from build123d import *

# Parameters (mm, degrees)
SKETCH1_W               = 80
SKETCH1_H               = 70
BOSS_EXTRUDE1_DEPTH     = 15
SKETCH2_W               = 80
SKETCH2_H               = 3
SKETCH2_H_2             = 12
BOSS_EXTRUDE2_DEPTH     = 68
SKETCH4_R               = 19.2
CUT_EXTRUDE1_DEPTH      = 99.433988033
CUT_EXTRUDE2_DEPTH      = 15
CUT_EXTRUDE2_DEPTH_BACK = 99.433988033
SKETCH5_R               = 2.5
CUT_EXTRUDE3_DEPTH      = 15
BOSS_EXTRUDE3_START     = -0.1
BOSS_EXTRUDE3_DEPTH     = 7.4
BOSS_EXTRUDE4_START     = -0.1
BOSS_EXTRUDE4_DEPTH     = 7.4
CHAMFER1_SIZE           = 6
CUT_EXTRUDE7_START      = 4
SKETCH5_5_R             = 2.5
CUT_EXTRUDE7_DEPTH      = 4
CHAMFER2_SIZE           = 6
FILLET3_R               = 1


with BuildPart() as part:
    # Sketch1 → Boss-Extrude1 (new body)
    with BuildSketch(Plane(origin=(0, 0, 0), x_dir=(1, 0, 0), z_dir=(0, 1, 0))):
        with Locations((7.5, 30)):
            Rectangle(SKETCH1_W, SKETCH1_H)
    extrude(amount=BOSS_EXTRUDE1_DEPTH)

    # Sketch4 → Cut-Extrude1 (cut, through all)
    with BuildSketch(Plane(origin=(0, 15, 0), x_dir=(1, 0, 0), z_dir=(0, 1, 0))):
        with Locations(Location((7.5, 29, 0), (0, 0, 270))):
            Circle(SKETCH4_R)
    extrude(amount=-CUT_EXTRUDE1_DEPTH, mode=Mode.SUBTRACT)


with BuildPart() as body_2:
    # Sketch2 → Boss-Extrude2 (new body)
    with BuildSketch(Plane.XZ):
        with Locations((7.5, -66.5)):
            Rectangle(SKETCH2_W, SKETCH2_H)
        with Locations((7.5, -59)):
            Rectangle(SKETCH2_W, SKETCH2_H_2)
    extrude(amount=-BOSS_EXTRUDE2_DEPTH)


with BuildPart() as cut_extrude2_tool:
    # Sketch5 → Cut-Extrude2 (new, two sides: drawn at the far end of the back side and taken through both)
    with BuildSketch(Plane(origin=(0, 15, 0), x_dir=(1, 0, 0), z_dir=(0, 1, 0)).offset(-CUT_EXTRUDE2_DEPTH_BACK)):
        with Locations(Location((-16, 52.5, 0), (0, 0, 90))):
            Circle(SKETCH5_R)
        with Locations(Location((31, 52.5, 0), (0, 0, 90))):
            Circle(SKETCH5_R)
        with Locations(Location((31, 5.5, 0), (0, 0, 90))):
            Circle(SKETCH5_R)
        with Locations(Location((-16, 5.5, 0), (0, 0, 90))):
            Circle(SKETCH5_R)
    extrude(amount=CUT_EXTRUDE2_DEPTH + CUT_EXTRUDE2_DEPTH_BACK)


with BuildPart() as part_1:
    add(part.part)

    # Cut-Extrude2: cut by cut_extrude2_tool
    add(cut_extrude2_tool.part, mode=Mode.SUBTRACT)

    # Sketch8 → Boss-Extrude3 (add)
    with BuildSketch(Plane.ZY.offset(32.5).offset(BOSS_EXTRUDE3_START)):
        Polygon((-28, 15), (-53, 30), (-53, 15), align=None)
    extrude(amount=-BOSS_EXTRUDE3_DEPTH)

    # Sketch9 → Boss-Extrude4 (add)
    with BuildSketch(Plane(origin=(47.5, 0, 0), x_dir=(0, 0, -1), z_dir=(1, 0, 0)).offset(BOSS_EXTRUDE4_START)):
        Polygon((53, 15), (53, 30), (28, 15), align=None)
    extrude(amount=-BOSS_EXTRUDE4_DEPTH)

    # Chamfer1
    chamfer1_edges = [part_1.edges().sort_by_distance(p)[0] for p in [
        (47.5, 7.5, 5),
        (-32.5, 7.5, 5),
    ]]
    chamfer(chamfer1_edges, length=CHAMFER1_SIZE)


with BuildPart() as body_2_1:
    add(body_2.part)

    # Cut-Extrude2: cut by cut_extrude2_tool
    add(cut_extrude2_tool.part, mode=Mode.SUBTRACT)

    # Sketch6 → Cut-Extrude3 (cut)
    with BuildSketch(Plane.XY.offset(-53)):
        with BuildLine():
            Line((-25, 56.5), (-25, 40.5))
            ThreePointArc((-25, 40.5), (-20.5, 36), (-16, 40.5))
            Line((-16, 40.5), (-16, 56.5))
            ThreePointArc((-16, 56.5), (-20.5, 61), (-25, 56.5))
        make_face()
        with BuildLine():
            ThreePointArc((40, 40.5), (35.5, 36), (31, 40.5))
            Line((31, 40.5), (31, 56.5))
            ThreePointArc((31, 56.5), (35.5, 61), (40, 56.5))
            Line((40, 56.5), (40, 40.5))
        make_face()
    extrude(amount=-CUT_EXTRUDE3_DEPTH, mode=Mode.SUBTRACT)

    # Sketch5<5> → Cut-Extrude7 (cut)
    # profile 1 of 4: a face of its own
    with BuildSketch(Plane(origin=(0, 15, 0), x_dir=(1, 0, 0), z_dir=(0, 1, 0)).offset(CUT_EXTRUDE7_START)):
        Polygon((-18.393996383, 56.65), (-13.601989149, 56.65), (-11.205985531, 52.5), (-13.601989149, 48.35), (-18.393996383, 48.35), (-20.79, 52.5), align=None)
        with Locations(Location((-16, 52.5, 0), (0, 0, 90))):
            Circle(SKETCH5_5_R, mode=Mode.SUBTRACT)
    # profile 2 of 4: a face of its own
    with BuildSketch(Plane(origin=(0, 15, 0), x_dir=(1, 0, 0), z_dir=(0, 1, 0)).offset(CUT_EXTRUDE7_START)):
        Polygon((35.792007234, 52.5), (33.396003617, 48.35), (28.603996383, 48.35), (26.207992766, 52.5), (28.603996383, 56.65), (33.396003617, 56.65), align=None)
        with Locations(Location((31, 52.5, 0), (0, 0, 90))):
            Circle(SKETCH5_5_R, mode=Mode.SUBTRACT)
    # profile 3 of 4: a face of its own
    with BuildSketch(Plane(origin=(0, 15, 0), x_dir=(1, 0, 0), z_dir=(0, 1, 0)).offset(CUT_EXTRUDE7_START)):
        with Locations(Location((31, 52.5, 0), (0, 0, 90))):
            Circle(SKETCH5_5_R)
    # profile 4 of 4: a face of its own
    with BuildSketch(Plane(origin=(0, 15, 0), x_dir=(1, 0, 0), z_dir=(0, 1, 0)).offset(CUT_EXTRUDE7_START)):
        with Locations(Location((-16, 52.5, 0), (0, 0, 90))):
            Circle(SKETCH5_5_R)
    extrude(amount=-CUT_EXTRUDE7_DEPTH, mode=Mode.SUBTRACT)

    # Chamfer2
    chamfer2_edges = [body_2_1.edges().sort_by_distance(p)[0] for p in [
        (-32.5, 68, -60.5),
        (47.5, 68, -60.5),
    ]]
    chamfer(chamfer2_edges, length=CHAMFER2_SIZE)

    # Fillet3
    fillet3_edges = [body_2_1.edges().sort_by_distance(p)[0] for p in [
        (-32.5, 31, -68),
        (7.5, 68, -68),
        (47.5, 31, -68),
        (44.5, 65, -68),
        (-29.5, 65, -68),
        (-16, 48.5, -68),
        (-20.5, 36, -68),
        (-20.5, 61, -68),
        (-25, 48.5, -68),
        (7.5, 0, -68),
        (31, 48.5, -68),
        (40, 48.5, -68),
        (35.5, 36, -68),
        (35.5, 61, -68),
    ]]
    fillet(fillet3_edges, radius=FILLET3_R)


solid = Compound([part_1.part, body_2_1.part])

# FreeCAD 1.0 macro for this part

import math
import FreeCAD as App
import Part
import Sketcher
from FreeCAD import Vector
Q = App.Units.Quantity


def edges_at(feature, points):
    """Names of the edges that pass closest to the given points."""
    edges = feature.Shape.Edges
    near = lambda p: min(range(len(edges)), key=lambda i: edges[i].distToShape(Part.Vertex(*p))[0])
    return sorted({f"Edge{near(p) + 1}" for p in points})


def add_polygon(sketch, points):
    """Adds a closed chain of lines whose ends are joined by coincident constraints."""
    first, n = sketch.GeometryCount, len(points)
    for a, b in zip(points, points[1:] + points[:1]):
        sketch.addGeometry(Part.LineSegment(App.Vector(*a, 0), App.Vector(*b, 0)), False)
    for i in range(n):
        sketch.addConstraint(Sketcher.Constraint("Coincident", first + i, 2, first + (i + 1) % n, 1))

doc = App.newDocument("Part")
params = doc.addObject("Spreadsheet::Sheet", "Params")
for row, (alias, value) in enumerate([
    ("sketch1_width", "80 mm"),
    ("sketch1_height", "70 mm"),
    ("pad1_length", "15 mm"),
    ("sketch2_diameter", "38.4 mm"),
    ("sketch3_width", "80 mm"),
    ("sketch3_height", "15 mm"),
    ("pad2_length", "68 mm"),
    ("sketch4_diameter", "5 mm"),
    ("pad3_length", "15 mm"),
    ("pad3_length2", "99.433988 mm"),
    ("sketch5_width", "15 mm"),
    ("sketch5_height", "25 mm"),
    ("pad4_length", "7.4 mm"),
    ("sketch6_width", "15 mm"),
    ("sketch6_height", "25 mm"),
    ("pad5_length", "7.4 mm"),
    ("chamfer_size", "6 mm"),
    ("sketch7_radius", "4.5 mm"),
    ("sketch7_height", "16 mm"),
    ("pocket2_length", "15 mm"),
    ("pocket3_length", "4 mm"),
    ("chamfer2_size", "6 mm"),
    ("fillet_radius", "1 mm"),
], start=1):
    params.set(f"A{row}", alias)
    params.set(f"B{row}", "=" + value)
    params.setAlias(f"B{row}", alias)

body = doc.addObject("PartDesign::Body", "Body")

# Sketch on XZ plane
sketch1 = doc.addObject("Sketcher::SketchObject", "Sketch")
body.addObject(sketch1)
sketch1.AttachmentSupport = (doc.XZ_Plane, [""])
sketch1.MapMode = "FlatFace"
add_polygon(sketch1, [(-32.5, -65), (-32.5, 5), (47.5, 5), (47.5, -65)])  # lines 0-3
sketch1.addConstraint([
    Sketcher.Constraint("Vertical", 0),
    Sketcher.Constraint("Horizontal", 1),
    Sketcher.Constraint("Vertical", 2),
    Sketcher.Constraint("Horizontal", 3),
    Sketcher.Constraint("DistanceX", 1, 1, 1, 2, Q("80 mm")),
    Sketcher.Constraint("DistanceY", 0, 1, 0, 2, Q("70 mm")),
    Sketcher.Constraint("DistanceY", -1, 1, 0, 2, Q("5 mm")),
    Sketcher.Constraint("DistanceX", 0, 2, -1, 1, Q("32.5 mm")),
])
sketch1.setExpression("Constraints[8]", "Params.sketch1_width")
sketch1.setExpression("Constraints[9]", "Params.sketch1_height")
pad1 = doc.addObject("PartDesign::Pad", "Pad")
body.addObject(pad1)
pad1.Profile = sketch1
pad1.setExpression("Length", "Params.pad1_length")
pad1.Reversed = True

# Sketch on XZ plane
sketch2 = doc.addObject("Sketcher::SketchObject", "Sketch001")
body.addObject(sketch2)
sketch2.AttachmentSupport = (doc.XZ_Plane, [""])
sketch2.MapMode = "FlatFace"
sketch2.AttachmentOffset = App.Placement(Vector(0, 0, -15), App.Rotation())
sketch2.addGeometry(Part.Circle(Vector(7.5, -29, 0), Vector(0, 0, 1), 19.2), False)
sketch2.addConstraint([
    Sketcher.Constraint("Diameter", 0, Q("38.4 mm")),
    Sketcher.Constraint("DistanceY", 0, 3, -1, 1, Q("29 mm")),
    Sketcher.Constraint("DistanceX", -1, 1, 0, 3, Q("7.5 mm")),
])
sketch2.setExpression("Constraints[0]", "Params.sketch2_diameter")
pocket1 = doc.addObject("PartDesign::Pocket", "Pocket")
body.addObject(pocket1)
pocket1.Profile = sketch2
pocket1.Type = "ThroughAll"
pocket1.Reversed = True
body2 = doc.addObject("PartDesign::Body", "Body001")

# Sketch on XZ plane
sketch3 = doc.addObject("Sketcher::SketchObject", "Sketch002")
body2.addObject(sketch3)
sketch3.AttachmentSupport = (doc.getObject("XZ_Plane001"), [""])
sketch3.MapMode = "FlatFace"
add_polygon(sketch3, [(-32.5, -68), (47.5, -68), (47.5, -53), (-32.5, -53)])  # lines 0-3
sketch3.addConstraint([
    Sketcher.Constraint("Horizontal", 0),
    Sketcher.Constraint("Vertical", 1),
    Sketcher.Constraint("Horizontal", 2),
    Sketcher.Constraint("Vertical", 3),
    Sketcher.Constraint("DistanceX", 0, 1, 0, 2, Q("80 mm")),
    Sketcher.Constraint("DistanceY", 1, 1, 1, 2, Q("15 mm")),
    Sketcher.Constraint("DistanceY", 0, 2, -1, 1, Q("68 mm")),
    Sketcher.Constraint("DistanceX", -1, 1, 0, 2, Q("47.5 mm")),
])
sketch3.setExpression("Constraints[8]", "Params.sketch3_width")
sketch3.setExpression("Constraints[9]", "Params.sketch3_height")
pad2 = doc.addObject("PartDesign::Pad", "Pad001")
body2.addObject(pad2)
pad2.Profile = sketch3
pad2.setExpression("Length", "Params.pad2_length")
pad2.Reversed = True
body3 = doc.addObject("PartDesign::Body", "Body002")
body3.AllowCompound = True

# Sketch on XZ plane
sketch4 = doc.addObject("Sketcher::SketchObject", "Sketch003")
body3.addObject(sketch4)
sketch4.AttachmentSupport = (doc.getObject("XZ_Plane002"), [""])
sketch4.MapMode = "FlatFace"
sketch4.AttachmentOffset = App.Placement(Vector(0, 0, -15), App.Rotation())
sketch4.addGeometry([
    Part.Circle(Vector(-16, -52.5, 0), Vector(0, 0, 1), 2.5),
    Part.Circle(Vector(31, -52.5, 0), Vector(0, 0, 1), 2.5),
    Part.Circle(Vector(31, -5.5, 0), Vector(0, 0, 1), 2.5),
    Part.Circle(Vector(-16, -5.5, 0), Vector(0, 0, 1), 2.5),
], False)
sketch4.addConstraint([
    Sketcher.Constraint("Equal", 0, 1),
    Sketcher.Constraint("Equal", 1, 2),
    Sketcher.Constraint("Equal", 2, 3),
    Sketcher.Constraint("Horizontal", 0, 3, 1, 3),
    Sketcher.Constraint("Horizontal", 2, 3, 3, 3),
    Sketcher.Constraint("Vertical", 1, 3, 2, 3),
    Sketcher.Constraint("Vertical", 0, 3, 3, 3),
    Sketcher.Constraint("Diameter", 0, Q("5 mm")),
    Sketcher.Constraint("DistanceX", 0, 3, -1, 1, Q("16 mm")),
    Sketcher.Constraint("DistanceX", -1, 1, 1, 3, Q("31 mm")),
    Sketcher.Constraint("DistanceY", 1, 3, 2, 3, Q("47 mm")),
    Sketcher.Constraint("DistanceY", 0, 3, -1, 1, Q("52.5 mm")),
])
sketch4.setExpression("Constraints[7]", "Params.sketch4_diameter")
pad3 = doc.addObject("PartDesign::Pad", "Pad002")
body3.addObject(pad3)
pad3.Profile = sketch4
pad3.Type = "TwoLengths"
pad3.setExpression("Length", "Params.pad3_length")
pad3.setExpression("Length2", "Params.pad3_length2")
pad3.Reversed = True
doc.recompute()

body4 = doc.addObject("PartDesign::Body", "Body003")
body4.BaseFeature = body3
boolean = doc.addObject("PartDesign::Boolean", "Boolean")
body.addObject(boolean)
boolean.Type = "Cut"
boolean.addObjects([body4])
doc.recompute()

# Sketch on YZ plane
sketch5 = doc.addObject("Sketcher::SketchObject", "Sketch004")
body.addObject(sketch5)
sketch5.AttachmentSupport = (doc.YZ_Plane, [""])
sketch5.MapMode = "FlatFace"
sketch5.AttachmentOffset = App.Placement(Vector(0, 0, -32.4), App.Rotation())
add_polygon(sketch5, [(15, -28), (30, -53), (15, -53)])  # lines 0-2
sketch5.addConstraint([
    Sketcher.Constraint("Horizontal", 1),
    Sketcher.Constraint("Vertical", 2),
    Sketcher.Constraint("DistanceX", 1, 2, 1, 1, Q("15 mm")),
    Sketcher.Constraint("DistanceY", 2, 1, 2, 2, Q("25 mm")),
    Sketcher.Constraint("DistanceX", -1, 1, 0, 2, Q("30 mm")),
    Sketcher.Constraint("DistanceY", 0, 2, -1, 1, Q("53 mm")),
])
sketch5.setExpression("Constraints[5]", "Params.sketch5_width")
sketch5.setExpression("Constraints[6]", "Params.sketch5_height")
pad4 = doc.addObject("PartDesign::Pad", "Pad003")
body.addObject(pad4)
pad4.Profile = sketch5
pad4.setExpression("Length", "Params.pad4_length")

# Sketch on YZ plane
sketch6 = doc.addObject("Sketcher::SketchObject", "Sketch005")
body.addObject(sketch6)
sketch6.AttachmentSupport = (doc.YZ_Plane, [""])
sketch6.MapMode = "FlatFace"
sketch6.AttachmentOffset = App.Placement(Vector(0, 0, 47.4), App.Rotation())
add_polygon(sketch6, [(15, -53), (30, -53), (15, -28)])  # lines 0-2
sketch6.addConstraint([
    Sketcher.Constraint("Horizontal", 0),
    Sketcher.Constraint("Vertical", 2),
    Sketcher.Constraint("DistanceX", 0, 1, 0, 2, Q("15 mm")),
    Sketcher.Constraint("DistanceY", 2, 2, 2, 1, Q("25 mm")),
    Sketcher.Constraint("DistanceX", -1, 1, 0, 2, Q("30 mm")),
    Sketcher.Constraint("DistanceY", 0, 2, -1, 1, Q("53 mm")),
])
sketch6.setExpression("Constraints[5]", "Params.sketch6_width")
sketch6.setExpression("Constraints[6]", "Params.sketch6_height")
pad5 = doc.addObject("PartDesign::Pad", "Pad004")
body.addObject(pad5)
pad5.Profile = sketch6
pad5.setExpression("Length", "Params.pad5_length")
pad5.Reversed = True
doc.recompute()

chamfer = doc.addObject("PartDesign::Chamfer", "Chamfer")
body.addObject(chamfer)
chamfer.Base = (pad5, edges_at(pad5, [(47.5, 7.5, 5), (-32.5, 7.5, 5)]))
chamfer.setExpression("Size", "Params.chamfer_size")
doc.recompute()

boolean2 = doc.addObject("PartDesign::Boolean", "Boolean001")
body2.addObject(boolean2)
boolean2.Type = "Cut"
boolean2.addObjects([body3])

# Sketch on XY plane
sketch7 = doc.addObject("Sketcher::SketchObject", "Sketch006")
body2.addObject(sketch7)
sketch7.AttachmentSupport = (doc.getObject("XY_Plane001"), [""])
sketch7.MapMode = "FlatFace"
sketch7.AttachmentOffset = App.Placement(Vector(0, 0, -53), App.Rotation())
sketch7.addGeometry([
    Part.LineSegment(Vector(-25, 56.5, 0), Vector(-25, 40.5, 0)),  # 0
    Part.ArcOfCircle(Part.Circle(Vector(-20.5, 40.5, 0), Vector(0, 0, 1), 4.5), math.radians(180), math.radians(360)),  # 1
    Part.LineSegment(Vector(-16, 40.5, 0), Vector(-16, 56.5, 0)),  # 2
    Part.ArcOfCircle(Part.Circle(Vector(-20.5, 56.5, 0), Vector(0, 0, 1), 4.5), math.radians(0), math.radians(180)),  # 3
    Part.ArcOfCircle(Part.Circle(Vector(35.5, 40.5, 0), Vector(0, 0, 1), 4.5), math.radians(180), math.radians(360)),  # 4
    Part.LineSegment(Vector(40, 40.5, 0), Vector(40, 56.5, 0)),  # 5
    Part.ArcOfCircle(Part.Circle(Vector(35.5, 56.5, 0), Vector(0, 0, 1), 4.5), math.radians(0), math.radians(180)),  # 6
    Part.LineSegment(Vector(31, 56.5, 0), Vector(31, 40.5, 0)),  # 7
], False)
sketch7.addConstraint([
    Sketcher.Constraint("Tangent", 0, 2, 1, 1),
    Sketcher.Constraint("Tangent", 1, 2, 2, 1),
    Sketcher.Constraint("Tangent", 2, 2, 3, 1),
    Sketcher.Constraint("Tangent", 3, 2, 0, 1),
    Sketcher.Constraint("Tangent", 4, 2, 5, 1),
    Sketcher.Constraint("Tangent", 5, 2, 6, 1),
    Sketcher.Constraint("Tangent", 6, 2, 7, 1),
    Sketcher.Constraint("Tangent", 7, 2, 4, 1),
    Sketcher.Constraint("Vertical", 0),
    Sketcher.Constraint("Vertical", 2),
    Sketcher.Constraint("Vertical", 5),
    Sketcher.Constraint("Vertical", 7),
    Sketcher.Constraint("Equal", 3, 4),
    Sketcher.Constraint("Horizontal", 1, 3, 4, 3),
    Sketcher.Constraint("Horizontal", 3, 3, 6, 3),
    Sketcher.Constraint("Radius", 1, Q("4.5 mm")),
    Sketcher.Constraint("DistanceY", 0, 2, 0, 1, Q("16 mm")),
    Sketcher.Constraint("DistanceX", 0, 2, -1, 1, Q("25 mm")),
    Sketcher.Constraint("DistanceX", -1, 1, 4, 2, Q("40 mm")),
    Sketcher.Constraint("DistanceY", -1, 1, 1, 3, Q("40.5 mm")),
])
sketch7.setExpression("Constraints[15]", "Params.sketch7_radius")
sketch7.setExpression("Constraints[16]", "Params.sketch7_height")
pocket2 = doc.addObject("PartDesign::Pocket", "Pocket001")
body2.addObject(pocket2)
pocket2.Profile = sketch7
pocket2.setExpression("Length", "Params.pocket2_length")

# Sketch on XZ plane
sketch8 = doc.addObject("Sketcher::SketchObject", "Sketch007")
body2.addObject(sketch8)
sketch8.AttachmentSupport = (doc.getObject("XZ_Plane001"), [""])
sketch8.MapMode = "FlatFace"
sketch8.AttachmentOffset = App.Placement(Vector(0, 0, -19), App.Rotation())
add_polygon(sketch8, [(-13.601989, -56.65), (-18.393996, -56.65), (-20.79, -52.5), (-18.393996, -48.35), (-13.601989, -48.35), (-11.205986, -52.5)])  # lines 0-5
add_polygon(sketch8, [(33.396004, -48.35), (35.792007, -52.5), (33.396004, -56.65), (28.603996, -56.65), (26.207993, -52.5), (28.603996, -48.35)])  # lines 6-11
sketch8.addConstraint([
    Sketcher.Constraint("Horizontal", 0),
    Sketcher.Constraint("Horizontal", 3),
    Sketcher.Constraint("Horizontal", 8),
    Sketcher.Constraint("Horizontal", 11),
    Sketcher.Constraint("Parallel", 1, 4),
    Sketcher.Constraint("Parallel", 2, 5),
    Sketcher.Constraint("Parallel", 4, 6),
    Sketcher.Constraint("Parallel", 5, 7),
    Sketcher.Constraint("Parallel", 6, 9),
    Sketcher.Constraint("Parallel", 7, 10),
    Sketcher.Constraint("Horizontal", 1, 2, 4, 2),
    Sketcher.Constraint("Horizontal", 4, 2, 6, 2),
    Sketcher.Constraint("Horizontal", 5, 2, 7, 2),
    Sketcher.Constraint("Horizontal", 6, 2, 9, 2),
    Sketcher.Constraint("Horizontal", 3, 2, 10, 2),
    Sketcher.Constraint("Vertical", 0, 2, 2, 2),
    Sketcher.Constraint("Vertical", 3, 2, 5, 2),
    Sketcher.Constraint("Equal", 3, 8),
    Sketcher.Constraint("Angle", 1, Q("120 deg")),
    Sketcher.Constraint("DistanceY", 1, 2, -1, 1, Q("52.5 mm")),
    Sketcher.Constraint("DistanceY", 0, 2, 2, 2, Q("8.3 mm")),
    Sketcher.Constraint("DistanceX", 1, 2, -1, 1, Q("20.79 mm")),
    Sketcher.Constraint("DistanceX", 0, 2, 7, 2, Q("51.79 mm")),
    Sketcher.Constraint("DistanceX", 0, 2, 0, 1, Q("4.792007 mm")),
])
pocket3 = doc.addObject("PartDesign::Pocket", "Pocket002")
body2.addObject(pocket3)
pocket3.Profile = sketch8
pocket3.setExpression("Length", "Params.pocket3_length")
pocket3.Reversed = True
doc.recompute()

chamfer2 = doc.addObject("PartDesign::Chamfer", "Chamfer001")
body2.addObject(chamfer2)
chamfer2.Base = (pocket3, edges_at(pocket3, [(-32.5, 68, -60.5), (47.5, 68, -60.5)]))
chamfer2.setExpression("Size", "Params.chamfer2_size")
doc.recompute()

fillet = doc.addObject("PartDesign::Fillet", "Fillet")
body2.addObject(fillet)
fillet.Base = (chamfer2, edges_at(chamfer2, [
    (-32.5, 31, -68),
    (7.5, 68, -68),
    (47.5, 31, -68),
    (44.5, 65, -68),
    (-29.5, 65, -68),
    (-16, 48.5, -68),
    (-20.5, 36, -68),
    (-20.5, 61, -68),
    (-25, 48.5, -68),
    (7.5, 0, -68),
    (31, 48.5, -68),
    (40, 48.5, -68),
    (35.5, 36, -68),
    (35.5, 61, -68),
]))
fillet.setExpression("Radius", "Params.fillet_radius")

doc.recompute()
